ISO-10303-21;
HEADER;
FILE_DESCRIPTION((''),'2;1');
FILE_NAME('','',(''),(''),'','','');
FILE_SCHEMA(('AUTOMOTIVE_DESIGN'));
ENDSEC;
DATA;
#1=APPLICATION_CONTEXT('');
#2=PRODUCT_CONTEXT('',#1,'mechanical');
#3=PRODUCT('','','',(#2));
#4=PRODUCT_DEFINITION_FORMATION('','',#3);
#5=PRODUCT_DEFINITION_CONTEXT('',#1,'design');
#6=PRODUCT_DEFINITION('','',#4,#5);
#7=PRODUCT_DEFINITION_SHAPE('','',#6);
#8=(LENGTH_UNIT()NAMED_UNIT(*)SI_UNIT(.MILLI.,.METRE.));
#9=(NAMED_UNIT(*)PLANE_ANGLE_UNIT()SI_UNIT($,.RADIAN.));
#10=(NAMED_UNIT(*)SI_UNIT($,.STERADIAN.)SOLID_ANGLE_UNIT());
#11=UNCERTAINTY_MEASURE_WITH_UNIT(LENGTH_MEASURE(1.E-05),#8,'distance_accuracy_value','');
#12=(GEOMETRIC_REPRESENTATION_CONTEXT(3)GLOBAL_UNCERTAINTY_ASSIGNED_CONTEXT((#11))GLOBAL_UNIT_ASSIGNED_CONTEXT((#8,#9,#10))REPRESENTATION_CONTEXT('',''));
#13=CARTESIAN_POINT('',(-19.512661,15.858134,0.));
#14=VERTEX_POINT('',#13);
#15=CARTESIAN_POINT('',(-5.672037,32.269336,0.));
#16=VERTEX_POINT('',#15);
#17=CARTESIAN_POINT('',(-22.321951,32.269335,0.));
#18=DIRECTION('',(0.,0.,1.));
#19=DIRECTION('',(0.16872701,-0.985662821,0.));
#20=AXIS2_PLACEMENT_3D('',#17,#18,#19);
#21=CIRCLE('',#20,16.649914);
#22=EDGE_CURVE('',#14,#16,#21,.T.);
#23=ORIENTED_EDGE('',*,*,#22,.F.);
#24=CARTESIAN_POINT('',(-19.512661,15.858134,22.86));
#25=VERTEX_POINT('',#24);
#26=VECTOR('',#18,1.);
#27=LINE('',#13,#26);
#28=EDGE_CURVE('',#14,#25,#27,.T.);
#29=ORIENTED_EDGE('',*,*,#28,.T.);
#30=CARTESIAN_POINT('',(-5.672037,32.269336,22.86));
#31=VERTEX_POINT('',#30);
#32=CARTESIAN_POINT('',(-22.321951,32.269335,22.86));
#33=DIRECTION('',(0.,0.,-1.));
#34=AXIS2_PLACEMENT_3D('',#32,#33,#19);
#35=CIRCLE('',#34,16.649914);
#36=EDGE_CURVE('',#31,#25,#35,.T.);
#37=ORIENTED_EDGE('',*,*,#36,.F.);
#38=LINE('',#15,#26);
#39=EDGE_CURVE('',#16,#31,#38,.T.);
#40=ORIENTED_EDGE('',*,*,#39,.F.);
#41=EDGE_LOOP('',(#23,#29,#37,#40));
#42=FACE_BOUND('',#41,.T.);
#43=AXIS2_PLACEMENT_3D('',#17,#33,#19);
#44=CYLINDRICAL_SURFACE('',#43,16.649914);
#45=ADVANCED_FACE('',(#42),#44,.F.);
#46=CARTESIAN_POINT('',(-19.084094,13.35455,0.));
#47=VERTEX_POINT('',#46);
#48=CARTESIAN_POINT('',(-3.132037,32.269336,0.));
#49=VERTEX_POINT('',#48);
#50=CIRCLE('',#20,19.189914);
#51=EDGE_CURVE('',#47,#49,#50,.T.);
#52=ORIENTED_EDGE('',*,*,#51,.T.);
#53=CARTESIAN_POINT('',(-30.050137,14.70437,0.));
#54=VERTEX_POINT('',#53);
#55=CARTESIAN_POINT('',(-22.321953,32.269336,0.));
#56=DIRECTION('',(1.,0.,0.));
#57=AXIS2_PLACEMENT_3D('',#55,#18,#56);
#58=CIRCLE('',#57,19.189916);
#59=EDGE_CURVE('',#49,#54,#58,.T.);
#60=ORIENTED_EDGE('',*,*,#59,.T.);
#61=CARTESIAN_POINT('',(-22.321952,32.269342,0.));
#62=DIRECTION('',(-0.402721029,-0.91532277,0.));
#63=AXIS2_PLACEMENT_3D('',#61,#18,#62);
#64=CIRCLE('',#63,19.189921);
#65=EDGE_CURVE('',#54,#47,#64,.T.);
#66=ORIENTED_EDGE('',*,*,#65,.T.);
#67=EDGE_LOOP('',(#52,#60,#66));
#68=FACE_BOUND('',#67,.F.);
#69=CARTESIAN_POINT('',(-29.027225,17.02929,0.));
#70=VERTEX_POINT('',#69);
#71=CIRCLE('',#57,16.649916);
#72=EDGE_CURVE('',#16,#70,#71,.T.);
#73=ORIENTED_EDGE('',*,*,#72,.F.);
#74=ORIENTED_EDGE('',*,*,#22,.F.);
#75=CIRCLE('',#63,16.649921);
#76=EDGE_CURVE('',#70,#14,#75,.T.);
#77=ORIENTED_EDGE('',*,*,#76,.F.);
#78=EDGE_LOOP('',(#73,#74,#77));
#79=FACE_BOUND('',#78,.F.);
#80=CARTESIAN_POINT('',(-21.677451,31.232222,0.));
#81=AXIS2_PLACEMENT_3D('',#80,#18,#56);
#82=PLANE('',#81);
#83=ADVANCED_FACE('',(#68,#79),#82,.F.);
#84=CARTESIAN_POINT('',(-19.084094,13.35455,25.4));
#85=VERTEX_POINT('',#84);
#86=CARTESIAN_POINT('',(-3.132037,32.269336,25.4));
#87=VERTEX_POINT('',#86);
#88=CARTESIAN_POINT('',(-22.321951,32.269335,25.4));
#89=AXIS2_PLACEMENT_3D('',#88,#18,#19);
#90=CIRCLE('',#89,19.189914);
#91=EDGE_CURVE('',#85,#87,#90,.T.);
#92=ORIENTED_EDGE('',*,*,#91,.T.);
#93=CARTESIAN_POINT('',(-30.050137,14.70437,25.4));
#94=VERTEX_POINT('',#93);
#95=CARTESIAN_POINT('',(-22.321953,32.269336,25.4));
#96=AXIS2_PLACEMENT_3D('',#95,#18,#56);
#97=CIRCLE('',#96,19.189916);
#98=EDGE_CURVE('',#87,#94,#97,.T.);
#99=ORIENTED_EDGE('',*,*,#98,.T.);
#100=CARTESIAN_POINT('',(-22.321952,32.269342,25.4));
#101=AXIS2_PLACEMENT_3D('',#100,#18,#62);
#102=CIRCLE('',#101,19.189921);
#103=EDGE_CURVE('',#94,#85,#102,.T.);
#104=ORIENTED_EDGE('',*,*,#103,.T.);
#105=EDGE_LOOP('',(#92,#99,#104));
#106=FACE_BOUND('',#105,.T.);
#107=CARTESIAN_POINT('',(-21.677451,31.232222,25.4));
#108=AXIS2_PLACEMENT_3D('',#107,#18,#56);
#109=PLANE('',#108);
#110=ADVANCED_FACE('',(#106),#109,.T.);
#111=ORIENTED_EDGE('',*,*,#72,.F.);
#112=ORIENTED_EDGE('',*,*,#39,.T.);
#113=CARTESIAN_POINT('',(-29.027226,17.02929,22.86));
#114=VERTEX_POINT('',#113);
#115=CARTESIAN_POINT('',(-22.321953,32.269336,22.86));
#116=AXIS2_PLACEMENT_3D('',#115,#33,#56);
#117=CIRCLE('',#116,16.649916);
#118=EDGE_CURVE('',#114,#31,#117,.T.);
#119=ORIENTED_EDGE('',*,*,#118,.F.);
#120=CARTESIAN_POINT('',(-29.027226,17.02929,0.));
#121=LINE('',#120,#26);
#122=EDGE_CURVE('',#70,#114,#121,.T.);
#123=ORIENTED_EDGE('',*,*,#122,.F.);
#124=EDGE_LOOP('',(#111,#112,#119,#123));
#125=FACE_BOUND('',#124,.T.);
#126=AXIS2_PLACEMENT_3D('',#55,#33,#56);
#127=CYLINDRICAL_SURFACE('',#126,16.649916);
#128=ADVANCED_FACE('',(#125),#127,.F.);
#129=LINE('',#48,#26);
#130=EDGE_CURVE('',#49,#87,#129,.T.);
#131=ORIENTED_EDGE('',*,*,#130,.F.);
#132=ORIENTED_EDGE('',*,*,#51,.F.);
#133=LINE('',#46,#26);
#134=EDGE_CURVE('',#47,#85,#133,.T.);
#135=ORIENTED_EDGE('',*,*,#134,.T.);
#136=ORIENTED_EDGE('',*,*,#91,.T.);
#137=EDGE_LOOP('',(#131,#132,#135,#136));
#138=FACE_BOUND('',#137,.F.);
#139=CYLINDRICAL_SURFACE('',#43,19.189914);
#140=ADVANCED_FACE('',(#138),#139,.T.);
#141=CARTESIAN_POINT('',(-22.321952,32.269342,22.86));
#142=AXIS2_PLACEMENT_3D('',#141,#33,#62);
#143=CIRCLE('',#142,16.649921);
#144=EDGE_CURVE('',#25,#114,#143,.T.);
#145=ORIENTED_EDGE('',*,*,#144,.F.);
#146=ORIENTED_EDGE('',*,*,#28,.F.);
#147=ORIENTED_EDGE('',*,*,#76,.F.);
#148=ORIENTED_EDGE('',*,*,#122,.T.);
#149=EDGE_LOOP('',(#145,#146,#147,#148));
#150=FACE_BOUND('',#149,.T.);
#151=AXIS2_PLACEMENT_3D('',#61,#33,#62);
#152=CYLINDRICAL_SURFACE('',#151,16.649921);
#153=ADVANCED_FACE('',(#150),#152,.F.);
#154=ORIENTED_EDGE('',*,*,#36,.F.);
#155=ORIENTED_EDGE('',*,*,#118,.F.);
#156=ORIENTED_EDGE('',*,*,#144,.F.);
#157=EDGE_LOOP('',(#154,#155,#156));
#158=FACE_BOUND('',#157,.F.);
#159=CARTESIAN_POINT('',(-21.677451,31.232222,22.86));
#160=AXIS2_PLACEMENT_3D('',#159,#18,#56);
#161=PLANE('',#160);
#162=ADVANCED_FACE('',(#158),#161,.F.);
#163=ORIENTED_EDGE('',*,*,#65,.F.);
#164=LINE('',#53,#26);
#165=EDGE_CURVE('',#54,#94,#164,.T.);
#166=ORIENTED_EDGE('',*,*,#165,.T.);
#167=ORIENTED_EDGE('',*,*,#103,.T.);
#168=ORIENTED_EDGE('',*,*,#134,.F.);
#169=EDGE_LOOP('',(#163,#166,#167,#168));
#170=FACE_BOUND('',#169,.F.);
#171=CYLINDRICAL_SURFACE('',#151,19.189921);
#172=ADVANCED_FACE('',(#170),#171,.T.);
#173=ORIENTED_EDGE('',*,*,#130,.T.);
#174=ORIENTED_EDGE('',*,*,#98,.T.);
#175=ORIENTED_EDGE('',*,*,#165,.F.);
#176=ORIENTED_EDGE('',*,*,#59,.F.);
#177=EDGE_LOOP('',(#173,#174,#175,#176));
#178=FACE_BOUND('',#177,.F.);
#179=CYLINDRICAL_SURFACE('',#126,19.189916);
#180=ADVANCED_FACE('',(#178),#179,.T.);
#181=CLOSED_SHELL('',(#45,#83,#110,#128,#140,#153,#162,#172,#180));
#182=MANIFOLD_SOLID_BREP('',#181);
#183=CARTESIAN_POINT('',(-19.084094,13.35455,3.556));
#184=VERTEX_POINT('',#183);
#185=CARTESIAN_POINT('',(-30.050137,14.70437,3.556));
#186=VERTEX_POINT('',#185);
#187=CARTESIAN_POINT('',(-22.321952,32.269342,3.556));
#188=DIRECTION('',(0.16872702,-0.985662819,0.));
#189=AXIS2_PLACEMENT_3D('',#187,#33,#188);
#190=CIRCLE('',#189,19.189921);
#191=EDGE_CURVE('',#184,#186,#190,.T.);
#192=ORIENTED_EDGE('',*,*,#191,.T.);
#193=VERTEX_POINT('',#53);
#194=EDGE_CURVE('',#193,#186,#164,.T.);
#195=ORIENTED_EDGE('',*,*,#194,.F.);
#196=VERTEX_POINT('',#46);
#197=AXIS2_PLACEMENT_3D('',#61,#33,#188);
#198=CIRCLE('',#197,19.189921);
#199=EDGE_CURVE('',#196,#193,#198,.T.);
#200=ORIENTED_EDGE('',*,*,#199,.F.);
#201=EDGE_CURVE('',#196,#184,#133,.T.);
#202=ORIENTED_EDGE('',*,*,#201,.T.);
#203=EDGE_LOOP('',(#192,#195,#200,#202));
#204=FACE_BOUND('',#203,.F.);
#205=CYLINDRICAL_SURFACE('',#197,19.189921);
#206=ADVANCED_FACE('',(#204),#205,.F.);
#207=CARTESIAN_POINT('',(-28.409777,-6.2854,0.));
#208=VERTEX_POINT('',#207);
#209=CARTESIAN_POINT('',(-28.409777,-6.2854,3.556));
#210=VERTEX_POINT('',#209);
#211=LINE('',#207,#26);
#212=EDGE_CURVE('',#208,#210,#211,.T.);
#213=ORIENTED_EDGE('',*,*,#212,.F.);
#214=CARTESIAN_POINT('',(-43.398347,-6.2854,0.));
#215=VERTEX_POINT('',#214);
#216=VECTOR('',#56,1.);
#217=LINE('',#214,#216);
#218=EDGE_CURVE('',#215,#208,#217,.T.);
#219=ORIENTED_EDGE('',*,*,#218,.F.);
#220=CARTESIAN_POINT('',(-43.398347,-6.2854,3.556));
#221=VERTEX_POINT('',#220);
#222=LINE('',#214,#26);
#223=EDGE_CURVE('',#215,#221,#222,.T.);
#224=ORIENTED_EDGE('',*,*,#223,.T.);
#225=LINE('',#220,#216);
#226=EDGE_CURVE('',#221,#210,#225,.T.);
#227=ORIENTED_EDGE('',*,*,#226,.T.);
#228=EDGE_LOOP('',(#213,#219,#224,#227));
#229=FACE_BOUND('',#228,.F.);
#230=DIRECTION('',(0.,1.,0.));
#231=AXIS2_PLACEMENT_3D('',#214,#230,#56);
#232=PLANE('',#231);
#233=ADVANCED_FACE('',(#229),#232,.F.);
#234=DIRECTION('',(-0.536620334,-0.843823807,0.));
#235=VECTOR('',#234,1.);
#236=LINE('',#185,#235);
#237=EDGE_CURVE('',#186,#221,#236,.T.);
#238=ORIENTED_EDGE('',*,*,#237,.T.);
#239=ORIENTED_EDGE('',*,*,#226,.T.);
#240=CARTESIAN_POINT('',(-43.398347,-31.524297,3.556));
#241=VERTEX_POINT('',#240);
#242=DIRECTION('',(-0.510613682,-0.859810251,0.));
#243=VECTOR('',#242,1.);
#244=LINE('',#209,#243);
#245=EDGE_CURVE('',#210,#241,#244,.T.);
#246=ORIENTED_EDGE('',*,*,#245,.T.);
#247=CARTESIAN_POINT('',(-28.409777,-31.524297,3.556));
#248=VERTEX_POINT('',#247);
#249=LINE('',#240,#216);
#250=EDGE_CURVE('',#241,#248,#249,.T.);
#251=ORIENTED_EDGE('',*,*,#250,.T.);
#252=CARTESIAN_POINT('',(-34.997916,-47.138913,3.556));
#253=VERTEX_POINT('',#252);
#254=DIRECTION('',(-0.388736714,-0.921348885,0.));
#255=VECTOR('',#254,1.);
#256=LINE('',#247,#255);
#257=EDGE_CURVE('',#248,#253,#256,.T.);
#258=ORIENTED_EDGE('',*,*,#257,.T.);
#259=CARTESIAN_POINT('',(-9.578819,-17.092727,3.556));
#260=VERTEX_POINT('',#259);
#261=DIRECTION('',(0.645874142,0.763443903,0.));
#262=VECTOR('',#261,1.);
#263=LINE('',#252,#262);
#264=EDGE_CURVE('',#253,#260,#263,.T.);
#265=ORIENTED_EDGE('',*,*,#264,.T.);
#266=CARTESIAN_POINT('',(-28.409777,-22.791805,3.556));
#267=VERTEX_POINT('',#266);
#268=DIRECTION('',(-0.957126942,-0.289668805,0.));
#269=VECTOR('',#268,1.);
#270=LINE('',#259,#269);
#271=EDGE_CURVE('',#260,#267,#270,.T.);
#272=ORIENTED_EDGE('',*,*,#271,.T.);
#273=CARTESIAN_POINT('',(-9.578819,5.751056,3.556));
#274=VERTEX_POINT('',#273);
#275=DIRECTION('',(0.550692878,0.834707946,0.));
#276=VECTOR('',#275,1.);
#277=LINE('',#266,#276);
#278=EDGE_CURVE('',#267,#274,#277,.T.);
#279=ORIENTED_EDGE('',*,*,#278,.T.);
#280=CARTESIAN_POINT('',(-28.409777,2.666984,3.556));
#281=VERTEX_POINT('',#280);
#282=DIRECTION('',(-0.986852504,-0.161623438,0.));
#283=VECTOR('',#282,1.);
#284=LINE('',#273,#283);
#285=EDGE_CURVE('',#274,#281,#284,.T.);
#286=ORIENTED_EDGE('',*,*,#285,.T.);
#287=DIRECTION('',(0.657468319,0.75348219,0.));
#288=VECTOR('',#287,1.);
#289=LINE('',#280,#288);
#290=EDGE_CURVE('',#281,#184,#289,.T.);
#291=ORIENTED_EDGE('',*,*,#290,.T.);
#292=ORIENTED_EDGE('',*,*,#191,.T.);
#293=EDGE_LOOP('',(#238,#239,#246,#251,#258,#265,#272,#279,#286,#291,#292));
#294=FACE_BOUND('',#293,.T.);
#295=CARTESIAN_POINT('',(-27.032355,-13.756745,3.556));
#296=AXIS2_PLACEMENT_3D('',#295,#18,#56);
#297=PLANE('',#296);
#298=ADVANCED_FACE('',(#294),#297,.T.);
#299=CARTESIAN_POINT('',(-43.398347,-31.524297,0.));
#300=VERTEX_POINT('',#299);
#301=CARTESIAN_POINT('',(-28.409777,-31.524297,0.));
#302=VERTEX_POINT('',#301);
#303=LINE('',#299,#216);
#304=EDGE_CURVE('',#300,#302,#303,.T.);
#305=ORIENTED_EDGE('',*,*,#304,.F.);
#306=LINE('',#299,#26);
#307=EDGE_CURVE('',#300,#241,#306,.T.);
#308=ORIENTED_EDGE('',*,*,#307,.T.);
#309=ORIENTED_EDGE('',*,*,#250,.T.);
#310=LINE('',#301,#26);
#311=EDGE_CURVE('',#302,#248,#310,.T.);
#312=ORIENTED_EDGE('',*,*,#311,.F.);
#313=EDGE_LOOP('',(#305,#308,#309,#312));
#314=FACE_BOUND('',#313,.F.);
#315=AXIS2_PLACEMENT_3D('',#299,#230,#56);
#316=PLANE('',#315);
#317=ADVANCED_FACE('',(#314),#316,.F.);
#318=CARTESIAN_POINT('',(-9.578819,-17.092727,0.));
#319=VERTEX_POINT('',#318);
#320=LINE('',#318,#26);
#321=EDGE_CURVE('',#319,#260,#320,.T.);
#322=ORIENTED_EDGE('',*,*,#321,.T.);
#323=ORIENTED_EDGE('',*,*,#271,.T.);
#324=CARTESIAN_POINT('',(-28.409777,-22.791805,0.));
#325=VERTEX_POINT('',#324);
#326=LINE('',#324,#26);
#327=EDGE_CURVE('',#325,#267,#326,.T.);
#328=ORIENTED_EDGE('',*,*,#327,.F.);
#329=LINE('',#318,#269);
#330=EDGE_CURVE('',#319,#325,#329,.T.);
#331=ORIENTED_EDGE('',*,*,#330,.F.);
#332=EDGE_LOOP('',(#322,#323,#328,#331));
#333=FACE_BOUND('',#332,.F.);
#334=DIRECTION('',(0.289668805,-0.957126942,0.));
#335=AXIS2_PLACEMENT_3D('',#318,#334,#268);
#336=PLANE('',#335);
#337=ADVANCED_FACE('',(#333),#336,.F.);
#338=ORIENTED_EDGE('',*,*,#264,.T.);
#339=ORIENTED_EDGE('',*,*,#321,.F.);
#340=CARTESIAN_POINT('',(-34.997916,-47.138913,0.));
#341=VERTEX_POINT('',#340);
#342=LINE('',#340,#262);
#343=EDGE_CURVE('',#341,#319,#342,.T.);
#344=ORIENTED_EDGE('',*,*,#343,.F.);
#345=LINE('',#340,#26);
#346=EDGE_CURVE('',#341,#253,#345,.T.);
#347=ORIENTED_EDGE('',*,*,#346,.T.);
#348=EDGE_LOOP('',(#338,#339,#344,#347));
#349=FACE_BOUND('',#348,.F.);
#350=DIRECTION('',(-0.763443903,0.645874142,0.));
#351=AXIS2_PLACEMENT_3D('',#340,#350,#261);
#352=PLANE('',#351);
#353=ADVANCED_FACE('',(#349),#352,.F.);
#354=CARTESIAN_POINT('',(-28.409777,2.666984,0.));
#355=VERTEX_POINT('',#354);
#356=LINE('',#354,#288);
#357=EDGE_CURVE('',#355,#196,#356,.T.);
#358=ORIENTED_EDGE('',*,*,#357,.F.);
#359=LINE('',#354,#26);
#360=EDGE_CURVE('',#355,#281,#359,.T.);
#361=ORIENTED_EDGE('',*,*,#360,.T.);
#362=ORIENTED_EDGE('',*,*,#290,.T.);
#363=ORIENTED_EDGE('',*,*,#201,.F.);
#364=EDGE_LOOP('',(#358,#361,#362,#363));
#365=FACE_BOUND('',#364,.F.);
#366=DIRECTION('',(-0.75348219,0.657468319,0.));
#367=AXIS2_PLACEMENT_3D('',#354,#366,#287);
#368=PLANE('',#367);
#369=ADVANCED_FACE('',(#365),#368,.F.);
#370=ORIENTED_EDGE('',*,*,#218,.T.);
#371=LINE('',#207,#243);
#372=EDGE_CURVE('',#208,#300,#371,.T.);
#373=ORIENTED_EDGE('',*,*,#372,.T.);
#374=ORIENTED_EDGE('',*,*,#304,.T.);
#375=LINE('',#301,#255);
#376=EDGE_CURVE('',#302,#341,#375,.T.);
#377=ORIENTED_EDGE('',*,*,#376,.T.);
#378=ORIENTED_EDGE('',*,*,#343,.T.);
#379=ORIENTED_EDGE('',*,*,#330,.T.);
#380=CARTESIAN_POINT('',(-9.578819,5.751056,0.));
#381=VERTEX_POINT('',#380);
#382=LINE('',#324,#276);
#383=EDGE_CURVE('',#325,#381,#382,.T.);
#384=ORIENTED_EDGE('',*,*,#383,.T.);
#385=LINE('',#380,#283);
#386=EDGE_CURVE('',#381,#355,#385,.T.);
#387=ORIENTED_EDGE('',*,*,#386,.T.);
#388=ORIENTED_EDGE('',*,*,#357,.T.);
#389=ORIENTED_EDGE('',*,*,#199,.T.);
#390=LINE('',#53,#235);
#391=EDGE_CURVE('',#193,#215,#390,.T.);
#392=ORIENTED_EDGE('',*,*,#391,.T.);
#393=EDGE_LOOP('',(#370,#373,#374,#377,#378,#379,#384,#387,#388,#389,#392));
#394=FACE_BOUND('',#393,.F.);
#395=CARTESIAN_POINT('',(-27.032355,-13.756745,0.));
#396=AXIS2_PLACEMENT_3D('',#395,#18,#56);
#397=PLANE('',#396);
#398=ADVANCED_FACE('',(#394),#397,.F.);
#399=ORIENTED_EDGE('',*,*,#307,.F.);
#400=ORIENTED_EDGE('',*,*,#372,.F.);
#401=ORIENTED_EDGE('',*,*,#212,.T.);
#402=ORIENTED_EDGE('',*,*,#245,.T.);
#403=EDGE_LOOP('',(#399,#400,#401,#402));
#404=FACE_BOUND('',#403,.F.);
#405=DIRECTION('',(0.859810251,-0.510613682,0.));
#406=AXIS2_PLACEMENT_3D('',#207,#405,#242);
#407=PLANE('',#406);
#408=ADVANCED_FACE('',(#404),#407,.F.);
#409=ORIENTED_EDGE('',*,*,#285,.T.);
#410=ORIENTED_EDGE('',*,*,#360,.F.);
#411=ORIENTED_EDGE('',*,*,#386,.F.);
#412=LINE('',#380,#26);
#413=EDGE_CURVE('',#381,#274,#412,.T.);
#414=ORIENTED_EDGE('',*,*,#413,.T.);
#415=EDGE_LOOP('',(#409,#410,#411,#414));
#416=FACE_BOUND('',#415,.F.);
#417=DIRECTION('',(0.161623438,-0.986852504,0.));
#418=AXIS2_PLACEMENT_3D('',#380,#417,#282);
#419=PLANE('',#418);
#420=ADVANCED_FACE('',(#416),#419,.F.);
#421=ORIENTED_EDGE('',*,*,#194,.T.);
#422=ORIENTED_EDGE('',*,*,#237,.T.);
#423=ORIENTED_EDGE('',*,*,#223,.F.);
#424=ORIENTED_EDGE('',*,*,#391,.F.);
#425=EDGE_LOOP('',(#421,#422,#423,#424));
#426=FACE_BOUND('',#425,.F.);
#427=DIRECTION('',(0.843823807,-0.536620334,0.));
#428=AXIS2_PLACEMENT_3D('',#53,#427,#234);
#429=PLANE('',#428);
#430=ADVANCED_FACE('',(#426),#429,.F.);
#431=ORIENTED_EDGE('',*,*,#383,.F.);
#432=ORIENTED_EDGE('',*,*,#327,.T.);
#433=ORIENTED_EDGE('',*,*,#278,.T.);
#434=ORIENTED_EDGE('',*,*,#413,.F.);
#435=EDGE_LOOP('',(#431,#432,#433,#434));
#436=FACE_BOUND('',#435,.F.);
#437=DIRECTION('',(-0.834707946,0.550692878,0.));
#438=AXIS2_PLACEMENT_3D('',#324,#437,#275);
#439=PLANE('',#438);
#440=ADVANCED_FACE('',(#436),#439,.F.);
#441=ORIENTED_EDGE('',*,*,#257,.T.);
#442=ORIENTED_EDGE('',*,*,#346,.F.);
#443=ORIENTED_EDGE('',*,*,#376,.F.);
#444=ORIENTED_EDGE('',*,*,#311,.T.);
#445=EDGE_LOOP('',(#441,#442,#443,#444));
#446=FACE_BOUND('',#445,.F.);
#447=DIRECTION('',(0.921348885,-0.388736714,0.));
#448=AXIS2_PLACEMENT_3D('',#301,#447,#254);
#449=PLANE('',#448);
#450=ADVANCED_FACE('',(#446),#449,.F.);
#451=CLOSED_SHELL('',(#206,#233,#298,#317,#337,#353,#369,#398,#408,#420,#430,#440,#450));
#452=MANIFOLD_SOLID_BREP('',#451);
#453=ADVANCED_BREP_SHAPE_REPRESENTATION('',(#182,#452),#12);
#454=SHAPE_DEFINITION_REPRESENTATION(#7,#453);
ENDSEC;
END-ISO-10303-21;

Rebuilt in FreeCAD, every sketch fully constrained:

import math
import FreeCAD as App
import Part
import Sketcher

V = App.Vector
Q = App.Units.Quantity


def faces_at(feature, points):
    """Names of the faces that lie closest to the given points."""
    faces = feature.Shape.Faces
    near = lambda p: min(range(len(faces)), key=lambda i: faces[i].distToShape(Part.Vertex(*p))[0])
    return sorted({f"Face{near(p) + 1}" for p in points})

doc = App.newDocument("Part")
body = doc.addObject("PartDesign::Body", "Body")

sketch1 = body.newObject("Sketcher::SketchObject", "Sketch")
sketch1.AttachmentSupport = (doc.getObject("XY_Plane"), [""])
sketch1.MapMode = "FlatFace"
sketch1.addGeometry([
    Part.ArcOfCircle(Part.Circle(V(-22.321951, 32.269335, 0), V(0, 0, 1), 19.189914), math.radians(-80.286187), math.radians(0.000004)),
    Part.ArcOfCircle(Part.Circle(V(-22.321953, 32.269336, 0), V(0, 0, 1), 19.189916), math.radians(0), math.radians(246.251601)),
    Part.ArcOfCircle(Part.Circle(V(-22.321952, 32.269342, 0), V(0, 0, 1), 19.189921), math.radians(-113.748394), math.radians(-80.286186)),
], False)
sketch1.addConstraint([
    Sketcher.Constraint("Tangent", 0, 2, 1, 1),
    Sketcher.Constraint("Tangent", 1, 2, 2, 1),
    Sketcher.Constraint("Tangent", 2, 2, 0, 1),
    Sketcher.Constraint("Horizontal", 1, 3, 0, 2),
    Sketcher.Constraint("Radius", 2, 19.189921),
    Sketcher.Constraint("DistanceX", 1, 2, 0, 2, 26.9181),
    Sketcher.Constraint("DistanceX", 0, 3, -1, 1, 22.321951),
    Sketcher.Constraint("DistanceY", -1, 1, 2, 3, 32.269342),
    Sketcher.Constraint("DistanceY", -1, 1, 2, 2, 13.35455),
])
pad1 = body.newObject("PartDesign::Pad", "Pad")
pad1.Profile = sketch1
pad1.Length = Q("1 in")
doc.recompute()

thickness = body.newObject("PartDesign::Thickness", "Thickness")
thickness.Base = (pad1, faces_at(pad1, [(-22.322, 32.269, 0)]))
thickness.Value = Q("0.1 in")
thickness.Reversed = True
thickness.Join = "Arc"
body2 = doc.addObject("PartDesign::Body", "Body001")

sketch2 = body2.newObject("Sketcher::SketchObject", "Sketch001")
sketch2.AttachmentSupport = (doc.getObject("XY_Plane001"), [""])
sketch2.MapMode = "FlatFace"
sketch2.addGeometry([
    Part.ArcOfCircle(Part.Circle(V(-22.321952, 32.269342, 0), V(0, 0, 1), 19.189921), math.radians(-113.748394), math.radians(-80.286186)),
    Part.LineSegment(V(-30.050137, 14.70437, 0), V(-43.398347, -6.2854, 0)),
    Part.LineSegment(V(-43.398347, -6.2854, 0), V(-28.409777, -6.2854, 0)),
    Part.LineSegment(V(-28.409777, -6.2854, 0), V(-43.398347, -31.524297, 0)),
    Part.LineSegment(V(-43.398347, -31.524297, 0), V(-28.409777, -31.524297, 0)),
    Part.LineSegment(V(-28.409777, -31.524297, 0), V(-34.997916, -47.138913, 0)),
    Part.LineSegment(V(-34.997916, -47.138913, 0), V(-9.578819, -17.092727, 0)),
    Part.LineSegment(V(-9.578819, -17.092727, 0), V(-28.409777, -22.791805, 0)),
    Part.LineSegment(V(-28.409777, -22.791805, 0), V(-9.578819, 5.751056, 0)),
    Part.LineSegment(V(-9.578819, 5.751056, 0), V(-28.409777, 2.666984, 0)),
    Part.LineSegment(V(-28.409777, 2.666984, 0), V(-19.084094, 13.35455, 0)),
], False)
sketch2.addConstraint([
    Sketcher.Constraint("Coincident", 0, 1, 1, 1),
    Sketcher.Constraint("Coincident", 1, 2, 2, 1),
    Sketcher.Constraint("Coincident", 2, 2, 3, 1),
    Sketcher.Constraint("Coincident", 3, 2, 4, 1),
    Sketcher.Constraint("Coincident", 4, 2, 5, 1),
    Sketcher.Constraint("Coincident", 5, 2, 6, 1),
    Sketcher.Constraint("Coincident", 6, 2, 7, 1),
    Sketcher.Constraint("Coincident", 7, 2, 8, 1),
    Sketcher.Constraint("Coincident", 8, 2, 9, 1),
    Sketcher.Constraint("Coincident", 9, 2, 10, 1),
    Sketcher.Constraint("Coincident", 10, 2, 0, 2),
    Sketcher.Constraint("Horizontal", 2),
    Sketcher.Constraint("Horizontal", 4),
    Sketcher.Constraint("Vertical", 1, 2, 3, 2),
    Sketcher.Constraint("Vertical", 2, 2, 4, 2),
    Sketcher.Constraint("Vertical", 4, 2, 7, 2),
    Sketcher.Constraint("Vertical", 6, 2, 8, 2),
    Sketcher.Constraint("Vertical", 7, 2, 9, 2),
    Sketcher.Constraint("Radius", 0, 19.189921),
    Sketcher.Constraint("DistanceX", 2, 1, 2, 2, 14.98857),
    Sketcher.Constraint("DistanceY", 1, 2, -1, 1, 6.2854),
    Sketcher.Constraint("Distance", 1, 24.874589),
    Sketcher.Constraint("Distance", 3, 29.354031),
    Sketcher.Constraint("Distance", 5, 16.947561),
    Sketcher.Constraint("Distance", 10, 14.184232),
    Sketcher.Constraint("DistanceY", -1, 1, 0, 3, 32.269342),
    Sketcher.Constraint("DistanceY", -1, 1, 0, 1, 14.70437),
    Sketcher.Constraint("DistanceX", 6, 2, -1, 1, 9.578819),
    Sketcher.Constraint("DistanceY", -1, 1, 10, 2, 13.35455),
    Sketcher.Constraint("DistanceX", 5, 2, 4, 2, 6.588139),
    Sketcher.Constraint("DistanceY", 4, 2, 6, 2, 14.43157),
    Sketcher.Constraint("DistanceX", 1, 2, 6, 2, 33.819528),
    Sketcher.Constraint("DistanceY", 7, 2, 8, 2, 28.542861),
    Sketcher.Constraint("DistanceY", 7, 2, 9, 2, 25.458789),
])
pad2 = body2.newObject("PartDesign::Pad", "Pad001")
pad2.Profile = sketch2
pad2.Length = Q("0.14 in")

doc.recompute()
